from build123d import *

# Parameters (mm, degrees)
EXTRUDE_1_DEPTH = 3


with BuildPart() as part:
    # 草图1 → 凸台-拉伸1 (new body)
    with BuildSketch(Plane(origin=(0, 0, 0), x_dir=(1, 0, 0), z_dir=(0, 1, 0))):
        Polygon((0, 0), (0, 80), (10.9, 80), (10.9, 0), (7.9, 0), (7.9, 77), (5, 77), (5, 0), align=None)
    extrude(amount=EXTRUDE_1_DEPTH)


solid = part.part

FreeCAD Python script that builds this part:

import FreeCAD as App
import Part
import Sketcher
from FreeCAD import Vector
Q = App.Units.Quantity


def add_polygon(sketch, points):
    """Adds a closed chain of lines whose ends are joined by coincident constraints."""
    first, n = sketch.GeometryCount, len(points)
    for a, b in zip(points, points[1:] + points[:1]):
        sketch.addGeometry(Part.LineSegment(App.Vector(*a, 0), App.Vector(*b, 0)), False)
    for i in range(n):
        sketch.addConstraint(Sketcher.Constraint("Coincident", first + i, 2, first + (i + 1) % n, 1))

doc = App.newDocument("Part")
body = doc.addObject("PartDesign::Body", "Body")

# Sketch on XZ plane
sketch1 = body.newObject("Sketcher::SketchObject", "Sketch")
sketch1.AttachmentSupport = (doc.getObject("XZ_Plane"), [""])
sketch1.MapMode = "FlatFace"
add_polygon(sketch1, [(0, -80), (0, 0), (5, 0), (5, -77), (7.9, -77), (7.9, 0), (10.9, 0), (10.9, -80)])  # lines 0-7
sketch1.addConstraint([
    Sketcher.Constraint("Vertical", 0),
    Sketcher.Constraint("Horizontal", 1),
    Sketcher.Constraint("Vertical", 2),
    Sketcher.Constraint("Horizontal", 3),
    Sketcher.Constraint("Vertical", 4),
    Sketcher.Constraint("Horizontal", 5),
    Sketcher.Constraint("Vertical", 6),
    Sketcher.Constraint("Horizontal", 7),
    Sketcher.Constraint("Coincident", 0, 2, -1, 1),
    Sketcher.Constraint("PointOnObject", 4, 2, -1),
    Sketcher.Constraint("DistanceX", 1, 1, 1, 2, Q("5 mm")),
    Sketcher.Constraint("DistanceX", 5, 1, 5, 2, Q("3 mm")),
    Sketcher.Constraint("DistanceY", 0, 1, 0, 2, Q("80 mm")),
    Sketcher.Constraint("DistanceY", 2, 2, 2, 1, Q("77 mm")),
    Sketcher.Constraint("DistanceX", 3, 1, 3, 2, Q("2.9 mm")),
])
pad1 = body.newObject("PartDesign::Pad", "Pad")
pad1.Profile = sketch1
pad1.Length = 3
pad1.Reversed = True

doc.recompute()
